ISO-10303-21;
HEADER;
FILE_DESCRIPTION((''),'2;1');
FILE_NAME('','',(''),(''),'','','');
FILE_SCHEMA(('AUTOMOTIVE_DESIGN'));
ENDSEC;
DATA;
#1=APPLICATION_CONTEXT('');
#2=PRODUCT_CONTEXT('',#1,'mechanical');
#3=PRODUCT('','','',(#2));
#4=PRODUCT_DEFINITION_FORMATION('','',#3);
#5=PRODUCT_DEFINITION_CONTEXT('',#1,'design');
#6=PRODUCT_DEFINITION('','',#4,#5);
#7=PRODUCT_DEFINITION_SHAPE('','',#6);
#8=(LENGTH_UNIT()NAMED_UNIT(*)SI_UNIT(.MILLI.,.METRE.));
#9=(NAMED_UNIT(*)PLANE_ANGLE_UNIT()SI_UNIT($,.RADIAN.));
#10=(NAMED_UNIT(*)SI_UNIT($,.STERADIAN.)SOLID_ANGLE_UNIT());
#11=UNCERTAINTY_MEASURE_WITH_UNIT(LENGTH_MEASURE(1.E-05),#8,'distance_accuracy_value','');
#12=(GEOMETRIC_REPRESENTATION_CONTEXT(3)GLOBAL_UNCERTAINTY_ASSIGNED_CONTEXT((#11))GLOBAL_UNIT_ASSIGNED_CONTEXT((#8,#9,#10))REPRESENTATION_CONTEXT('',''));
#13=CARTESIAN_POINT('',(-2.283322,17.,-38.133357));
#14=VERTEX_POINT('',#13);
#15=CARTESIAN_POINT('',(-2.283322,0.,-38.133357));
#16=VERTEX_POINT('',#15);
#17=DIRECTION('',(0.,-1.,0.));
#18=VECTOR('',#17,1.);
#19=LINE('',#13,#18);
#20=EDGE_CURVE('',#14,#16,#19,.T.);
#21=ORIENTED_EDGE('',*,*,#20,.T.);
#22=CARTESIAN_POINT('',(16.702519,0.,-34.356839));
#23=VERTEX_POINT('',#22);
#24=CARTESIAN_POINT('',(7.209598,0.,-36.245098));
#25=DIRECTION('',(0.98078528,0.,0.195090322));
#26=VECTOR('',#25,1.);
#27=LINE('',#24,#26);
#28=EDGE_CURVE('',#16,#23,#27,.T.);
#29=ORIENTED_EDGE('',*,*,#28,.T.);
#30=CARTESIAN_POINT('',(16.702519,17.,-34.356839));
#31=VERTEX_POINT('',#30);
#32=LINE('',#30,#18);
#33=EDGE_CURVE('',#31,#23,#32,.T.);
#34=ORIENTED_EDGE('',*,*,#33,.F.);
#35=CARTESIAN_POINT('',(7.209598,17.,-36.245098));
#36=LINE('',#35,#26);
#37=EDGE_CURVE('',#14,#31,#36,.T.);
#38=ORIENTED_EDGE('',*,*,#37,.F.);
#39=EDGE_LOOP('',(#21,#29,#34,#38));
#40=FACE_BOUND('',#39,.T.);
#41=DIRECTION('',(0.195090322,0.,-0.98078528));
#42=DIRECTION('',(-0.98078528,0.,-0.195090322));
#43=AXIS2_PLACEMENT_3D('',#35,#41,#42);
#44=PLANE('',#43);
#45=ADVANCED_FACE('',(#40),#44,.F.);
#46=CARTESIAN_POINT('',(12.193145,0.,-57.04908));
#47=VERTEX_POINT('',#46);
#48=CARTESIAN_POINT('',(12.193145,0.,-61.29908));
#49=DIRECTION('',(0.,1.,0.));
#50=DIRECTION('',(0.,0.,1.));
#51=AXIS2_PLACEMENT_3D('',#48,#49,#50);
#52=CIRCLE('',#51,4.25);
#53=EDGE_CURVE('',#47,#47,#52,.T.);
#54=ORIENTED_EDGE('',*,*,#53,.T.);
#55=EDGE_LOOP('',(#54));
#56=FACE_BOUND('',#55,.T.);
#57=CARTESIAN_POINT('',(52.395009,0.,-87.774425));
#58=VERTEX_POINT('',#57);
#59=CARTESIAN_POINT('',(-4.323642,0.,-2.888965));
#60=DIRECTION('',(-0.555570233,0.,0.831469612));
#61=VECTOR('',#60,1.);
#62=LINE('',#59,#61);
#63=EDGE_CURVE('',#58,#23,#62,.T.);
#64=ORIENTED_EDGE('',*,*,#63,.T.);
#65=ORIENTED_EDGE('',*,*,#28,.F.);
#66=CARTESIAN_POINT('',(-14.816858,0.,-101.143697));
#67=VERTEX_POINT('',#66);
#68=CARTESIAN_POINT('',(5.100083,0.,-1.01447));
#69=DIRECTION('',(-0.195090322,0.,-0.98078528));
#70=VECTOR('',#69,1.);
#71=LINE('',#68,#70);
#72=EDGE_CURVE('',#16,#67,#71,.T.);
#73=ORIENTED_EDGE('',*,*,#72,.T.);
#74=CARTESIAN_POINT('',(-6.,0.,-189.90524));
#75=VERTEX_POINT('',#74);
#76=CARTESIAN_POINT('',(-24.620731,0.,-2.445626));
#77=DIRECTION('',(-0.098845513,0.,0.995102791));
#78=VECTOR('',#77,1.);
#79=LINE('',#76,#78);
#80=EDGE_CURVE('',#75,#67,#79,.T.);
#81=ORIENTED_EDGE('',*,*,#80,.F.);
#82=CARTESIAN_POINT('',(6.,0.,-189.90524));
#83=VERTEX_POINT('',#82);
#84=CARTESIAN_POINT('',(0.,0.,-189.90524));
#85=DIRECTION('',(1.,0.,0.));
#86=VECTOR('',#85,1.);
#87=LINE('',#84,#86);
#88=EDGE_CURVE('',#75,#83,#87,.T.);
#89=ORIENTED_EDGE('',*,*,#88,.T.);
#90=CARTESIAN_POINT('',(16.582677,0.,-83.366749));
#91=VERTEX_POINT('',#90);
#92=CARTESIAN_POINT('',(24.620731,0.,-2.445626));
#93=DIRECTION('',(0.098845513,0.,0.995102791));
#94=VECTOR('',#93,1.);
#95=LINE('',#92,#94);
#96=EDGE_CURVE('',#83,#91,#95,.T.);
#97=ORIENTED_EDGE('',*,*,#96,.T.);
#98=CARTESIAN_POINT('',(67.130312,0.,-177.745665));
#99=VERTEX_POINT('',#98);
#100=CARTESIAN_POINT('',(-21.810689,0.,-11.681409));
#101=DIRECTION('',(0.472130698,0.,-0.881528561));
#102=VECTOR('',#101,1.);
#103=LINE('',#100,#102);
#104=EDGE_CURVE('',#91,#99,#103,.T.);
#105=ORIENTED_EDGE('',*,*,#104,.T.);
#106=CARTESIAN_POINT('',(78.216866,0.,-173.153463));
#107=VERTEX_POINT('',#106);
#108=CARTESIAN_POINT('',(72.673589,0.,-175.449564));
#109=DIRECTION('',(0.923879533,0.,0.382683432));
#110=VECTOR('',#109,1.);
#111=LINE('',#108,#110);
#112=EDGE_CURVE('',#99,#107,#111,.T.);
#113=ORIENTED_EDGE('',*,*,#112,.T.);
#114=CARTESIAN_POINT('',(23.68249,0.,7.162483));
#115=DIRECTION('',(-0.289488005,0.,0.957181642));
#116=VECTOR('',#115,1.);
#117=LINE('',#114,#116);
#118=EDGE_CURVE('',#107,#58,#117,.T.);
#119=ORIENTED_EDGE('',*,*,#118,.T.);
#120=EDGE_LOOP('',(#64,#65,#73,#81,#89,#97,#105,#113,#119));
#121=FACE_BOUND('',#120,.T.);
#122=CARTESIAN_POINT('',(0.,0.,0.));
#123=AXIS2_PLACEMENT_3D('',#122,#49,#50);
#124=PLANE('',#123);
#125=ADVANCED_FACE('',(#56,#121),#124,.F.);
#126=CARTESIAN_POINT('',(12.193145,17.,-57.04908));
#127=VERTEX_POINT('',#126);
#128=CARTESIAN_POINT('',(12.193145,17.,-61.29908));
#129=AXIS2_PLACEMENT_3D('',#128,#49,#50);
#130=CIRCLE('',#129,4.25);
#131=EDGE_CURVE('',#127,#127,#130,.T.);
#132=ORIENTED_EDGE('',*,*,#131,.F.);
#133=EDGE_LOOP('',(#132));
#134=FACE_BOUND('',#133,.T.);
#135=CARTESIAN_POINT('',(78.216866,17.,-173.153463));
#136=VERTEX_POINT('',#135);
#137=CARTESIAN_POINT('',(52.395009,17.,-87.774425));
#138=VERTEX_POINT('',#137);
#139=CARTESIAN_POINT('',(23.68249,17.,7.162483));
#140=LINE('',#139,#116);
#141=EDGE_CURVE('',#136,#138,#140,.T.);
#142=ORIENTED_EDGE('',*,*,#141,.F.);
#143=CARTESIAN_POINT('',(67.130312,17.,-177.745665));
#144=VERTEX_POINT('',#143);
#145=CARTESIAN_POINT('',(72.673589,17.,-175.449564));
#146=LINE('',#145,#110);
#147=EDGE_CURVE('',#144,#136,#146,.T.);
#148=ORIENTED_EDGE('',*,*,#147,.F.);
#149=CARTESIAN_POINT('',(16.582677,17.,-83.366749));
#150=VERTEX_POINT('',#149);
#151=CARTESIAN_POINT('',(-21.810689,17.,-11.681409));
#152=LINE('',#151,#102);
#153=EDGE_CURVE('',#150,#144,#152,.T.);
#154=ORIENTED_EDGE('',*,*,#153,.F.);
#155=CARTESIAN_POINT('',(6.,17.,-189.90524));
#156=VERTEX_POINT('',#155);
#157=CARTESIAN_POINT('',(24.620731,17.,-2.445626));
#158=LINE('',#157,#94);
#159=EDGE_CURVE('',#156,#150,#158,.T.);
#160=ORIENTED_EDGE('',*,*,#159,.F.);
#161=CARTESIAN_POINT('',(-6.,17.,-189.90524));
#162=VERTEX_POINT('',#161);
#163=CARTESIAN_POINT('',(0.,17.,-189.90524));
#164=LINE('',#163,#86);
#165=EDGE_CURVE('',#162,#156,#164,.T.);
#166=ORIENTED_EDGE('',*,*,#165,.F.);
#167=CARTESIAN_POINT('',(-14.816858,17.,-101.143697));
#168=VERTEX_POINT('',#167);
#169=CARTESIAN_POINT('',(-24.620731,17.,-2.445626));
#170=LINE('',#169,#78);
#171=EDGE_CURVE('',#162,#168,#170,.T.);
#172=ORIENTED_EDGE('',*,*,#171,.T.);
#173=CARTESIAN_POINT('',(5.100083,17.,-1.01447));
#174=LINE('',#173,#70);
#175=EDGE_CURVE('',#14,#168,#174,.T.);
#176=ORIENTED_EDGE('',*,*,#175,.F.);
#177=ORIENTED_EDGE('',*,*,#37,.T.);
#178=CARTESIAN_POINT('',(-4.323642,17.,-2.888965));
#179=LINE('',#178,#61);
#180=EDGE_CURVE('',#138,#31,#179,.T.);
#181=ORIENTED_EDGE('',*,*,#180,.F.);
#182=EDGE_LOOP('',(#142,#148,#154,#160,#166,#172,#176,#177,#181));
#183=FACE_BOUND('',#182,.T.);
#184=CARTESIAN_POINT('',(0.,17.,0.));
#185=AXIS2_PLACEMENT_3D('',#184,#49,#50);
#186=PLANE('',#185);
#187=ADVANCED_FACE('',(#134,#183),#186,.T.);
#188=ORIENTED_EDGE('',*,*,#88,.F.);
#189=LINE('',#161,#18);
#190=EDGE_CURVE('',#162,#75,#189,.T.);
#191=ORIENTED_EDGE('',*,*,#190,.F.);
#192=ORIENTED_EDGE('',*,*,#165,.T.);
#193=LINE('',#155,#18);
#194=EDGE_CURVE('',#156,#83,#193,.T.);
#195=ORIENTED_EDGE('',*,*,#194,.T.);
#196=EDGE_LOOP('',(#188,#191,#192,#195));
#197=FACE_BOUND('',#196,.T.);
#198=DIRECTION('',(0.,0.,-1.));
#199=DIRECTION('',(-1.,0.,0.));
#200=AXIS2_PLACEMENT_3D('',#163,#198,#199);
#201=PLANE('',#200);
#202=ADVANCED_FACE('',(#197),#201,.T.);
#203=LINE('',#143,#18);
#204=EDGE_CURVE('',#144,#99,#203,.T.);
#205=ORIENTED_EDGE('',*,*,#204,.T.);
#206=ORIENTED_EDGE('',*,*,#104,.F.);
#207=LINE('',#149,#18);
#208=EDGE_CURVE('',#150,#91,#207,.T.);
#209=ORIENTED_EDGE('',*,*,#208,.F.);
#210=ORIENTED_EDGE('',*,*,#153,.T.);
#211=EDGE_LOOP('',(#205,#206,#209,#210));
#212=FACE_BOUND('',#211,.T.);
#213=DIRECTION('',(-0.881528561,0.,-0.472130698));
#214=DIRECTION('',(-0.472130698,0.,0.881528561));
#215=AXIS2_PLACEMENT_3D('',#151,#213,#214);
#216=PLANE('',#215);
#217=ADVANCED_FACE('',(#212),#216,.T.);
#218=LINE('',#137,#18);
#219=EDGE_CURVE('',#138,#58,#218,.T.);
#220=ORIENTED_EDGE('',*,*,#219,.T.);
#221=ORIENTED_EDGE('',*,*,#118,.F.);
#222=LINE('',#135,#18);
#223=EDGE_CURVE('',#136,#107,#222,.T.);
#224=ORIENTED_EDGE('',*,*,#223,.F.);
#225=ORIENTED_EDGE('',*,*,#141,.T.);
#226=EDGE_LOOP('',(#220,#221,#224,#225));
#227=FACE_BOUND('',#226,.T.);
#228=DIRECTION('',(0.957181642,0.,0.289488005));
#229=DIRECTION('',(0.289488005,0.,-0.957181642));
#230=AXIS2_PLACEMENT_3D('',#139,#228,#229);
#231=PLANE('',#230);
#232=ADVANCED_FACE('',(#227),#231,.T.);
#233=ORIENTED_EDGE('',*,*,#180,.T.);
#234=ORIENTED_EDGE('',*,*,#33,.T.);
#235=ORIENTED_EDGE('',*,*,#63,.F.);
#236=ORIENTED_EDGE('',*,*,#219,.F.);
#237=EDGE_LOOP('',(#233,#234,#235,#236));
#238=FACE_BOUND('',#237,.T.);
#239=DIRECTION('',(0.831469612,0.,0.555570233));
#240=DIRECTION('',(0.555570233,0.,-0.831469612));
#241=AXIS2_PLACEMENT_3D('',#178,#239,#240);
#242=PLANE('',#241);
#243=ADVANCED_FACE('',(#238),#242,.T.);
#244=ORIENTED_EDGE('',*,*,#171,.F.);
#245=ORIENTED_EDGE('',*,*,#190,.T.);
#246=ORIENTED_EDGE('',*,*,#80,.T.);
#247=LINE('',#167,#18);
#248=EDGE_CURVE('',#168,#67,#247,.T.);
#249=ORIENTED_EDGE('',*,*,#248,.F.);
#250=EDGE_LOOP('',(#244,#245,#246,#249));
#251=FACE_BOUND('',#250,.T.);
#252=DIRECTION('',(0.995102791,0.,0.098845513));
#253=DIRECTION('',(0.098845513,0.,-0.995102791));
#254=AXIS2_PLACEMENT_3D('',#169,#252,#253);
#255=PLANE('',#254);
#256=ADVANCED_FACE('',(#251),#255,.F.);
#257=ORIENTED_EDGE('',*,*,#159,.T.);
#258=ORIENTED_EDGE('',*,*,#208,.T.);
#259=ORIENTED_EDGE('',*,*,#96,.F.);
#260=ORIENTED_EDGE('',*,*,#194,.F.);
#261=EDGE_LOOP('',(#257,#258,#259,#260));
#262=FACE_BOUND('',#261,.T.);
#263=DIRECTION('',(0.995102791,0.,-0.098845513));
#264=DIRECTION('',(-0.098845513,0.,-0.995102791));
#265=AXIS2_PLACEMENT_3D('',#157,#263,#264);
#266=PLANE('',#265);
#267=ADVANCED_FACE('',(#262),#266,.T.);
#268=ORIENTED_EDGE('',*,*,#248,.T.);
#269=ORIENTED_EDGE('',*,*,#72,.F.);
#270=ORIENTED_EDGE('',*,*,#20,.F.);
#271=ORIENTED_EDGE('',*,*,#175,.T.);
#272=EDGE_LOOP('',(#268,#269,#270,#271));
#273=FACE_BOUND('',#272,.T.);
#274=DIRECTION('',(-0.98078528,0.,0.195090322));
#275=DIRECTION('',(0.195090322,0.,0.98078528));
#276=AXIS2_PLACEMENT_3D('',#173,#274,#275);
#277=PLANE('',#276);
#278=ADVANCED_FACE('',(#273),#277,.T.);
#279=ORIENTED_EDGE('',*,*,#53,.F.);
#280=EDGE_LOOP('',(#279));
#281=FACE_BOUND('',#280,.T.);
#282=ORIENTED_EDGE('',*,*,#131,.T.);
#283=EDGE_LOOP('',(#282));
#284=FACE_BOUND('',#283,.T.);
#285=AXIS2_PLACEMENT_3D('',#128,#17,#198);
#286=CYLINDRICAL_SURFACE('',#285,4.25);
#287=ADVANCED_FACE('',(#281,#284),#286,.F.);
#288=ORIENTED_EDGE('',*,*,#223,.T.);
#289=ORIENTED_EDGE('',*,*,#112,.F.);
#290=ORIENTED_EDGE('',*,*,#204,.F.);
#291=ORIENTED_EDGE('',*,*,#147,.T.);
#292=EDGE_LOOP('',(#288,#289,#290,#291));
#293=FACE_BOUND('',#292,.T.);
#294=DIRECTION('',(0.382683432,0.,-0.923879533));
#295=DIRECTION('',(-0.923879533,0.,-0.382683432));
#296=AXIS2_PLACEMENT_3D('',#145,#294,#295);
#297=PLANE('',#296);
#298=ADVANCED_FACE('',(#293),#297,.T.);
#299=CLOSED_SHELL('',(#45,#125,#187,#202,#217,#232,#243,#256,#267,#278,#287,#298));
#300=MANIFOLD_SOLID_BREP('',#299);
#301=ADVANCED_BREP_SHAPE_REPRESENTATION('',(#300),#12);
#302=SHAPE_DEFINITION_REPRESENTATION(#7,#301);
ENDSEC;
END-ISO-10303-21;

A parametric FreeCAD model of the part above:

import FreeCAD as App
import Part
import Sketcher
Q = App.Units.Quantity


def add_polygon(sketch, points):
    """Adds a closed chain of lines whose ends are joined by coincident constraints."""
    first, n = sketch.GeometryCount, len(points)
    for a, b in zip(points, points[1:] + points[:1]):
        sketch.addGeometry(Part.LineSegment(App.Vector(*a, 0), App.Vector(*b, 0)), False)
    for i in range(n):
        sketch.addConstraint(Sketcher.Constraint("Coincident", first + i, 2, first + (i + 1) % n, 1))

doc = App.newDocument("Part")
body = doc.addObject("PartDesign::Body", "Body")

sketch1 = body.newObject("Sketcher::SketchObject", "Sketch")
sketch1.AttachmentSupport = (doc.getObject("XZ_Plane"), [""])
sketch1.MapMode = "FlatFace"
add_polygon(sketch1, [(6, -189.9), (-6, -189.9), (-14.8, -101.1), (-11.5, -84.4), (-7.6, -64.8), (-2.3, -38.1), (16.7, -34.4), (31.8, -56.9), (42.9, -73.6), (52.4, -87.8), (78.2, -173.2), (72.7, -175.4), (67.1, -177.7), (16.6, -83.4)])
sketch1.addGeometry(Part.Circle(App.Vector(12.2, -61.3, 0), App.Vector(0, 0, 1), 4.2), False)
sketch1.addConstraint([
    Sketcher.Constraint("Horizontal", 0),
    Sketcher.Constraint("Parallel", 2, 3),
    Sketcher.Constraint("Parallel", 3, 4),
    Sketcher.Constraint("Parallel", 6, 7),
    Sketcher.Constraint("Parallel", 7, 8),
    Sketcher.Constraint("Parallel", 10, 11),
    Sketcher.Constraint("Equal", 4, 6),
    Sketcher.Constraint("Equal", 3, 7),
    Sketcher.Constraint("Equal", 2, 8),
    Sketcher.Constraint("Equal", 1, 9),
    Sketcher.Constraint("Equal", 10, 11),
    Sketcher.Constraint("Equal", 12, 13),
    Sketcher.Constraint("Diameter", 14, Q("8.5 mm")),
    Sketcher.Constraint("DistanceX", 0, 2, 0, 1, Q("12 mm")),
    Sketcher.Constraint("Distance", 3, Q("20 mm")),
    Sketcher.Constraint("Distance", 10, Q("6 mm")),
    Sketcher.Constraint("DistanceX", 0, 2, -1, 1, Q("6 mm")),
    Sketcher.Constraint("Angle", 10, Q("-157.5 deg")),
    Sketcher.Constraint("Angle", 2, Q("78.75 deg")),
    Sketcher.Constraint("Angle", 5, Q("11.25 deg")),
    Sketcher.Constraint("Angle", 6, Q("-56.25 deg")),
    Sketcher.Constraint("Distance", 12, Q("107.0628 mm")),
    Sketcher.Constraint("Distance", 4, Q("27.153911 mm")),
    Sketcher.Constraint("DistanceY", 14, 3, -1, 1, Q("61.29908 mm")),
    Sketcher.Constraint("DistanceY", 0, 2, -1, 1, Q("189.90524 mm")),
    Sketcher.Constraint("DistanceX", 1, 2, -1, 1, Q("14.816858 mm")),
    Sketcher.Constraint("DistanceY", 2, 2, -1, 1, Q("84.381219 mm")),
    Sketcher.Constraint("DistanceX", -1, 1, 5, 2, Q("16.702519 mm")),
    Sketcher.Constraint("DistanceY", 5, 2, -1, 1, Q("34.356839 mm")),
    Sketcher.Constraint("DistanceX", -1, 1, 10, 2, Q("72.673589 mm")),
    Sketcher.Constraint("DistanceX", 2, 2, 14, 3, Q("23.675739 mm")),
])
pad1 = body.newObject("PartDesign::Pad", "Pad")
pad1.Profile = sketch1
pad1.Length = 17
pad1.Reversed = True

doc.recompute()
